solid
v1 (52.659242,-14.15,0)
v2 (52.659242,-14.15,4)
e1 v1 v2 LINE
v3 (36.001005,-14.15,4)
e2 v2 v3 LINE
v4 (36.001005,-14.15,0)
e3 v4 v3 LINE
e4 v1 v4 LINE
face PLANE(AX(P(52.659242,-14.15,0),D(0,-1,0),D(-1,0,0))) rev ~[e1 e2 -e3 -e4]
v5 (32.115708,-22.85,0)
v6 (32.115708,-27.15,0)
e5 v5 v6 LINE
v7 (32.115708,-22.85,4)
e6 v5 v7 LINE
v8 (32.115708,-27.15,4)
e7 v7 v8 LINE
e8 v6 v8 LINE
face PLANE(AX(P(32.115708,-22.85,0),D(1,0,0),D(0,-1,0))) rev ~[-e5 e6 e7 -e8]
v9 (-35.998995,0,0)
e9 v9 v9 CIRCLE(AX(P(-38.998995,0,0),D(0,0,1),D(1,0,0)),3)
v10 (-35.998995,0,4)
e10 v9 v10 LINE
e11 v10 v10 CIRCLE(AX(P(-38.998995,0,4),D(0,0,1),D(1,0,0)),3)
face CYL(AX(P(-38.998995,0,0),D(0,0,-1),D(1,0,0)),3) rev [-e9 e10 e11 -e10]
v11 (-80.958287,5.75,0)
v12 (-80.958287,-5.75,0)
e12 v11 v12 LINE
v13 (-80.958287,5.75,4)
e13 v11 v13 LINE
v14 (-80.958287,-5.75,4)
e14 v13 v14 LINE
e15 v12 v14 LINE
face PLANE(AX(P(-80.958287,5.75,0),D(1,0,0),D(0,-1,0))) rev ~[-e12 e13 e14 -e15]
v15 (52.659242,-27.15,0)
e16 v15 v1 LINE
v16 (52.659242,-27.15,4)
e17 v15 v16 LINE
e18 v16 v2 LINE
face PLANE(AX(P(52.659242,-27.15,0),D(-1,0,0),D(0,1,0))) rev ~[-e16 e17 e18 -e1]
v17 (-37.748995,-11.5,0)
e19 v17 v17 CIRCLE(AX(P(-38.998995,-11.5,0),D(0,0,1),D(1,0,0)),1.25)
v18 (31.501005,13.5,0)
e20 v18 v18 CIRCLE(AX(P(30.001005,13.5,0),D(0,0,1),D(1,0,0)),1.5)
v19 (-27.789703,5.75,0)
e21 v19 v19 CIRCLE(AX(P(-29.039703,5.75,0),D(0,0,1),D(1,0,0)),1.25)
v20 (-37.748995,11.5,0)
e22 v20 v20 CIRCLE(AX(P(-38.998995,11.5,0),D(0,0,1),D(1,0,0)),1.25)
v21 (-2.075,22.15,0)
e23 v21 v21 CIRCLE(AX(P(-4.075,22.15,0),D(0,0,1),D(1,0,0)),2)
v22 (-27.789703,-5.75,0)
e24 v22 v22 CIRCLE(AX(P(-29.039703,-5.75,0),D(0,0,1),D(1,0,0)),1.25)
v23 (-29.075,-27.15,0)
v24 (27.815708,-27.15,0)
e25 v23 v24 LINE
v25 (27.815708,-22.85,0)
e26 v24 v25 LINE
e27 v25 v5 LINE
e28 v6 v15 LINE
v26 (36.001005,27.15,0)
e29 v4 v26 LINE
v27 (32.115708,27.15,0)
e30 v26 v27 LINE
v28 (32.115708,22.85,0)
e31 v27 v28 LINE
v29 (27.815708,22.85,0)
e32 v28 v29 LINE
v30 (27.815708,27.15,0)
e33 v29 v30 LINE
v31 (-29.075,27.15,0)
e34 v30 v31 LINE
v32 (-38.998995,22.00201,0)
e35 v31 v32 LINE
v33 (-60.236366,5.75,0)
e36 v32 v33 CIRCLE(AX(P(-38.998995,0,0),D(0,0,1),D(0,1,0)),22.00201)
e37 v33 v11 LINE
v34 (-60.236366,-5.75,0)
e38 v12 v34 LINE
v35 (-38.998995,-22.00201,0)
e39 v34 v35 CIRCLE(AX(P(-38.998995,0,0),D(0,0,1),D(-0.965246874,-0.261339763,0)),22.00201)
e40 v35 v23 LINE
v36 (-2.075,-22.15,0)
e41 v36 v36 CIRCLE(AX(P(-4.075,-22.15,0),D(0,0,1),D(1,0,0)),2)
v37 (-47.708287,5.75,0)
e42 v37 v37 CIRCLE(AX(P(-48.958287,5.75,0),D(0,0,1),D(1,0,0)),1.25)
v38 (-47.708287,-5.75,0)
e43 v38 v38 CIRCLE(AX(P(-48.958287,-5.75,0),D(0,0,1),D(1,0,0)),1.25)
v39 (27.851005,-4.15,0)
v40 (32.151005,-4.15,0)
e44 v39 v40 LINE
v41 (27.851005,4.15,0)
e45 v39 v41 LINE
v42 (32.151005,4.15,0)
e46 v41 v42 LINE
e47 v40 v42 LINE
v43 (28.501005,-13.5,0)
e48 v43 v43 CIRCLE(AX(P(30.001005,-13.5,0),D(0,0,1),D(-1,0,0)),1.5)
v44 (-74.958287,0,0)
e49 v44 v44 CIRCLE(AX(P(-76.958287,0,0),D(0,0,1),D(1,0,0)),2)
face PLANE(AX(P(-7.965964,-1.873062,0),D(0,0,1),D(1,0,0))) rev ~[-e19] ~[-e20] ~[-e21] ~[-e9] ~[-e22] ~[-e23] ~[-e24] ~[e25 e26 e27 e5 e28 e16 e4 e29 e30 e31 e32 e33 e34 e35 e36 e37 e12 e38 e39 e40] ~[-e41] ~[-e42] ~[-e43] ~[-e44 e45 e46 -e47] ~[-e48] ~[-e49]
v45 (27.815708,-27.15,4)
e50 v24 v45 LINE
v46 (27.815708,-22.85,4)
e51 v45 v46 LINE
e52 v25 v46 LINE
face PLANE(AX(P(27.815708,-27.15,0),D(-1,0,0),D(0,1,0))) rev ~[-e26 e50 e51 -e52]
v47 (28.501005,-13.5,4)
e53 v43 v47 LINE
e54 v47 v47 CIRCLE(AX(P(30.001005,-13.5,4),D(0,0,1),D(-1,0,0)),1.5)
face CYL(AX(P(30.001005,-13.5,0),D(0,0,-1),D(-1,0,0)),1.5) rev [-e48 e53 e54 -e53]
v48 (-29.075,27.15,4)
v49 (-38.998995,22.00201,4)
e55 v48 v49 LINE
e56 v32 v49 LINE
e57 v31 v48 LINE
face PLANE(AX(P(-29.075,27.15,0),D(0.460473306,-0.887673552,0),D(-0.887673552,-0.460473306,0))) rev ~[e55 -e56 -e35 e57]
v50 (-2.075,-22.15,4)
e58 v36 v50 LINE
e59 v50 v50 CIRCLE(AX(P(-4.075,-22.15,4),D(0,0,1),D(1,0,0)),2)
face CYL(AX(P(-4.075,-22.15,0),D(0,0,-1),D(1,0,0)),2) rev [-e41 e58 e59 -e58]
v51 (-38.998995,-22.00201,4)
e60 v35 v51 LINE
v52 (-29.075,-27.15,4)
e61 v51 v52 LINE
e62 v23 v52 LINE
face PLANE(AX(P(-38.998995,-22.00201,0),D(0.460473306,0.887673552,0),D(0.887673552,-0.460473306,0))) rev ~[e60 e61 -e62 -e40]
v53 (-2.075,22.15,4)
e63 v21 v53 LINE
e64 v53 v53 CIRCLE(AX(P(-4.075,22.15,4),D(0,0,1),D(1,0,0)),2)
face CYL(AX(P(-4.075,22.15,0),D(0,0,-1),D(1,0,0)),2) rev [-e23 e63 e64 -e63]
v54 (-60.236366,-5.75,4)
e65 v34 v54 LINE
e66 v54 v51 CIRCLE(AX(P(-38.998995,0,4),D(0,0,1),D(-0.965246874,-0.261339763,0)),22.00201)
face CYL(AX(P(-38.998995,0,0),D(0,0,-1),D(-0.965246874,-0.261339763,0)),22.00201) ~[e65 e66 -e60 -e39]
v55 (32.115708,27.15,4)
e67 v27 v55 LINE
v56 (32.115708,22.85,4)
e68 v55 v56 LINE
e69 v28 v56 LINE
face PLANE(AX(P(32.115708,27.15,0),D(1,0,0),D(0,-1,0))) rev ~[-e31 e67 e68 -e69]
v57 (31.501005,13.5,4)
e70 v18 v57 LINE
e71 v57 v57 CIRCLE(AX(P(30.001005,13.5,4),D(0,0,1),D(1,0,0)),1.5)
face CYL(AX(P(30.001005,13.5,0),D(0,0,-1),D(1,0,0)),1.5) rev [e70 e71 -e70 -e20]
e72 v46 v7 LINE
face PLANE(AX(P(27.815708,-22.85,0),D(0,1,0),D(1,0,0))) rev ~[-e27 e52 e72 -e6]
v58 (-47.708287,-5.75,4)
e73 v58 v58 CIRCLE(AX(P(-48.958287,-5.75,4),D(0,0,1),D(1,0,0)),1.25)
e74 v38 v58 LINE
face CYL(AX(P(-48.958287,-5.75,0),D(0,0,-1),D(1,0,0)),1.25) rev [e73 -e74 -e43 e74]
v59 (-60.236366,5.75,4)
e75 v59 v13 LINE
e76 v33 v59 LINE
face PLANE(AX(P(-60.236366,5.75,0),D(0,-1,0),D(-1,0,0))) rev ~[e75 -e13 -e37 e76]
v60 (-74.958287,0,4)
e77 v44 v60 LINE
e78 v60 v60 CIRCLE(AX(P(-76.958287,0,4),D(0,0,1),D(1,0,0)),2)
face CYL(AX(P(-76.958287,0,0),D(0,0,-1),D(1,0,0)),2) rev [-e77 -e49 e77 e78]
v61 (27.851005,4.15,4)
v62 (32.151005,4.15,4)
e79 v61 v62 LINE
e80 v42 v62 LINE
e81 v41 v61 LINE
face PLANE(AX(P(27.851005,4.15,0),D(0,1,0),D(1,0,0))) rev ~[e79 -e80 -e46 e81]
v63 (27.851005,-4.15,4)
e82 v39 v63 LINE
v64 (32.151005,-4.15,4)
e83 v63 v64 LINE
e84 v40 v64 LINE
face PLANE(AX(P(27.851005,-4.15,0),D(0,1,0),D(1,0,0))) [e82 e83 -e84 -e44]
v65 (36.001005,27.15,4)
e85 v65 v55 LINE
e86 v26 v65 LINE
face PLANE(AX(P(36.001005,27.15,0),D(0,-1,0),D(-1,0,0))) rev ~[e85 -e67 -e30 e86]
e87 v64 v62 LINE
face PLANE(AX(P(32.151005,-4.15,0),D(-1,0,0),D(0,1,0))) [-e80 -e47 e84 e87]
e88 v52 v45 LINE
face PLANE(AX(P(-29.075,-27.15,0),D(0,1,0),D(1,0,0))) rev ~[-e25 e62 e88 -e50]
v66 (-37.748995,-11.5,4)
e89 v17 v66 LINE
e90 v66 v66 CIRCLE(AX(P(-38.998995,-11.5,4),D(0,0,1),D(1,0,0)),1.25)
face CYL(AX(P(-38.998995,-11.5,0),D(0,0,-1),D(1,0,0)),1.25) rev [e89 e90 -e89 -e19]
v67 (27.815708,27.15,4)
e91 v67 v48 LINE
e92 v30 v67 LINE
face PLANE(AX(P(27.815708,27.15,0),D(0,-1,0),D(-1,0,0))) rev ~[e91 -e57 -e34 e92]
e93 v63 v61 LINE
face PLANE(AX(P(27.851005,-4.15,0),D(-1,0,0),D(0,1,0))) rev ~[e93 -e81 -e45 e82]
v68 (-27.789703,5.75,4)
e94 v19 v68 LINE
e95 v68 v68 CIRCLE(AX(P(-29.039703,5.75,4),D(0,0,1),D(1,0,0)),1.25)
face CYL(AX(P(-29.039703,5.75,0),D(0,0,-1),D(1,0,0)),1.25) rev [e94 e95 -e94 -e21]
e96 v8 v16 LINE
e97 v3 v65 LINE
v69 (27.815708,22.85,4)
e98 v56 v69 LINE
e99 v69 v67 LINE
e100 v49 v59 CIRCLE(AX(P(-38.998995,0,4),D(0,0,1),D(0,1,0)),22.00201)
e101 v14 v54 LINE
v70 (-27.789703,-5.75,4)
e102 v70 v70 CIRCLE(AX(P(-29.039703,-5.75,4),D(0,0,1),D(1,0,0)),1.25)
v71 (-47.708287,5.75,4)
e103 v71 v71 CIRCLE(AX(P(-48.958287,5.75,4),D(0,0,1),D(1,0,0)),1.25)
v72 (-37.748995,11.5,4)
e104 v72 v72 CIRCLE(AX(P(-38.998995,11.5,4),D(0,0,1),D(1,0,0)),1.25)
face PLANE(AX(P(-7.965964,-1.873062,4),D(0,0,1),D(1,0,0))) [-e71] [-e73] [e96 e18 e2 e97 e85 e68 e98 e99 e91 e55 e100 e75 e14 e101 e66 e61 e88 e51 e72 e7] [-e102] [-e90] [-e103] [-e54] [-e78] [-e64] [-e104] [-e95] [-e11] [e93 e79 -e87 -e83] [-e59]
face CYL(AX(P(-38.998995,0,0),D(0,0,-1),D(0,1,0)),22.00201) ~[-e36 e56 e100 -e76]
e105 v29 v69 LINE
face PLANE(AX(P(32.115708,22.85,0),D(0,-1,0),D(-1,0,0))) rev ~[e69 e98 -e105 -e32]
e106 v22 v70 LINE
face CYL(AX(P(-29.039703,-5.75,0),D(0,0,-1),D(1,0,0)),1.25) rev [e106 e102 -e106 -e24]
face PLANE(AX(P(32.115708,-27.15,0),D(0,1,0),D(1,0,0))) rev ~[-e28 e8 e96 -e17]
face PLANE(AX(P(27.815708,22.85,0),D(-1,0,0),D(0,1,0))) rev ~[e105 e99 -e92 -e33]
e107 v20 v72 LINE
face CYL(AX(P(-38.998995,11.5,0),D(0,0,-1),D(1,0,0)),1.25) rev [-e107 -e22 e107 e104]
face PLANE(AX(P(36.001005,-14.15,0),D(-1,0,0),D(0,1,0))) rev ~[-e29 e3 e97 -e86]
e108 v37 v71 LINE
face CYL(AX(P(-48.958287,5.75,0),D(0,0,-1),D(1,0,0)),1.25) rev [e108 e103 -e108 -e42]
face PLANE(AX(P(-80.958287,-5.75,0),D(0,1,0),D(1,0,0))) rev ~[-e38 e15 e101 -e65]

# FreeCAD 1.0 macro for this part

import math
import FreeCAD as App
import Part
import Sketcher

V = App.Vector
Q = App.Units.Quantity

doc = App.newDocument("Part")
body = doc.addObject("PartDesign::Body", "Body")

# Sketch on XY plane
sketch1 = doc.addObject("Sketcher::SketchObject", "Sketch")
body.addObject(sketch1)
sketch1.AttachmentSupport = (doc.XY_Plane, [""])
sketch1.MapMode = "FlatFace"
sketch1.addGeometry(Part.LineSegment(V(32.115708, 27.15, 0), V(32.115708, 22.85, 0)), False)
sketch1.addGeometry(Part.LineSegment(V(32.115708, 22.85, 0), V(27.815708, 22.85, 0)), False)
sketch1.addGeometry(Part.LineSegment(V(27.815708, 22.85, 0), V(27.815708, 27.15, 0)), False)
sketch1.addGeometry(Part.LineSegment(V(27.815708, 27.15, 0), V(-29.075, 27.15, 0)), False)
sketch1.addGeometry(Part.LineSegment(V(-29.075, 27.15, 0), V(-38.998995, 22.00201, 0)), False)
sketch1.addGeometry(Part.ArcOfCircle(Part.Circle(V(-38.998995, 0, 0), V(0, 0, 1), 22.00201), math.radians(90), math.radians(164.850426)), False)
sketch1.addGeometry(Part.LineSegment(V(-60.236366, 5.75, 0), V(-80.958287, 5.75, 0)), False)
sketch1.addGeometry(Part.LineSegment(V(-80.958287, 5.75, 0), V(-80.958287, -5.75, 0)), False)
sketch1.addGeometry(Part.LineSegment(V(-80.958287, -5.75, 0), V(-60.236366, -5.75, 0)), False)
sketch1.addGeometry(Part.ArcOfCircle(Part.Circle(V(-38.998995, 0, 0), V(0, 0, 1), 22.00201), math.radians(-164.850426), math.radians(-90)), False)
sketch1.addGeometry(Part.LineSegment(V(-38.998995, -22.00201, 0), V(-29.075, -27.15, 0)), False)
sketch1.addGeometry(Part.LineSegment(V(-29.075, -27.15, 0), V(27.815708, -27.15, 0)), False)
sketch1.addGeometry(Part.LineSegment(V(27.815708, -27.15, 0), V(27.815708, -22.85, 0)), False)
sketch1.addGeometry(Part.LineSegment(V(27.815708, -22.85, 0), V(32.115708, -22.85, 0)), False)
sketch1.addGeometry(Part.LineSegment(V(32.115708, -22.85, 0), V(32.115708, -27.15, 0)), False)
sketch1.addGeometry(Part.LineSegment(V(32.115708, -27.15, 0), V(52.659242, -27.15, 0)), False)
sketch1.addGeometry(Part.LineSegment(V(52.659242, -27.15, 0), V(52.659242, -14.15, 0)), False)
sketch1.addGeometry(Part.LineSegment(V(52.659242, -14.15, 0), V(36.001005, -14.15, 0)), False)
sketch1.addGeometry(Part.LineSegment(V(36.001005, -14.15, 0), V(36.001005, 27.15, 0)), False)
sketch1.addGeometry(Part.LineSegment(V(36.001005, 27.15, 0), V(32.115708, 27.15, 0)), False)
sketch1.addGeometry(Part.Circle(V(-76.958287, 0, 0), V(0, 0, 1), 2), False)
sketch1.addGeometry(Part.Circle(V(-38.998995, -11.5, 0), V(0, 0, 1), 1.25), False)
sketch1.addGeometry(Part.Circle(V(-48.958287, -5.75, 0), V(0, 0, 1), 1.25), False)
sketch1.addGeometry(Part.Circle(V(-38.998995, 0, 0), V(0, 0, 1), 3), False)
sketch1.addGeometry(Part.Circle(V(-29.039703, -5.75, 0), V(0, 0, 1), 1.25), False)
sketch1.addGeometry(Part.Circle(V(-4.075, -22.15, 0), V(0, 0, 1), 2), False)
sketch1.addGeometry(Part.Circle(V(30.001005, -13.5, 0), V(0, 0, 1), 1.5), False)
sketch1.addGeometry(Part.LineSegment(V(32.151005, -4.15, 0), V(27.851005, -4.15, 0)), False)
sketch1.addGeometry(Part.LineSegment(V(27.851005, -4.15, 0), V(27.851005, 4.15, 0)), False)
sketch1.addGeometry(Part.LineSegment(V(27.851005, 4.15, 0), V(32.151005, 4.15, 0)), False)
sketch1.addGeometry(Part.LineSegment(V(32.151005, 4.15, 0), V(32.151005, -4.15, 0)), False)
sketch1.addGeometry(Part.Circle(V(-48.958287, 5.75, 0), V(0, 0, 1), 1.25), False)
sketch1.addGeometry(Part.Circle(V(-29.039703, 5.75, 0), V(0, 0, 1), 1.25), False)
sketch1.addGeometry(Part.Circle(V(-38.998995, 11.5, 0), V(0, 0, 1), 1.25), False)
sketch1.addGeometry(Part.Circle(V(-4.075, 22.15, 0), V(0, 0, 1), 2), False)
sketch1.addGeometry(Part.Circle(V(30.001005, 13.5, 0), V(0, 0, 1), 1.5), False)
sketch1.addConstraint(Sketcher.Constraint("Coincident", 0, 2, 1, 1))
sketch1.addConstraint(Sketcher.Constraint("Coincident", 1, 2, 2, 1))
sketch1.addConstraint(Sketcher.Constraint("Coincident", 2, 2, 3, 1))
sketch1.addConstraint(Sketcher.Constraint("Coincident", 3, 2, 4, 1))
sketch1.addConstraint(Sketcher.Constraint("Coincident", 4, 2, 5, 1))
sketch1.addConstraint(Sketcher.Constraint("Coincident", 5, 2, 6, 1))
sketch1.addConstraint(Sketcher.Constraint("Coincident", 6, 2, 7, 1))
sketch1.addConstraint(Sketcher.Constraint("Coincident", 7, 2, 8, 1))
sketch1.addConstraint(Sketcher.Constraint("Coincident", 8, 2, 9, 1))
sketch1.addConstraint(Sketcher.Constraint("Coincident", 9, 2, 10, 1))
sketch1.addConstraint(Sketcher.Constraint("Coincident", 10, 2, 11, 1))
sketch1.addConstraint(Sketcher.Constraint("Coincident", 11, 2, 12, 1))
sketch1.addConstraint(Sketcher.Constraint("Coincident", 12, 2, 13, 1))
sketch1.addConstraint(Sketcher.Constraint("Coincident", 13, 2, 14, 1))
sketch1.addConstraint(Sketcher.Constraint("Coincident", 14, 2, 15, 1))
sketch1.addConstraint(Sketcher.Constraint("Coincident", 15, 2, 16, 1))
sketch1.addConstraint(Sketcher.Constraint("Coincident", 16, 2, 17, 1))
sketch1.addConstraint(Sketcher.Constraint("Coincident", 17, 2, 18, 1))
sketch1.addConstraint(Sketcher.Constraint("Coincident", 18, 2, 19, 1))
sketch1.addConstraint(Sketcher.Constraint("Coincident", 19, 2, 0, 1))
sketch1.addConstraint(Sketcher.Constraint("Coincident", 27, 2, 28, 1))
sketch1.addConstraint(Sketcher.Constraint("Coincident", 28, 2, 29, 1))
sketch1.addConstraint(Sketcher.Constraint("Coincident", 29, 2, 30, 1))
sketch1.addConstraint(Sketcher.Constraint("Coincident", 30, 2, 27, 1))
sketch1.addConstraint(Sketcher.Constraint("Vertical", 0))
sketch1.addConstraint(Sketcher.Constraint("Horizontal", 1))
sketch1.addConstraint(Sketcher.Constraint("Vertical", 2))
sketch1.addConstraint(Sketcher.Constraint("Horizontal", 3))
sketch1.addConstraint(Sketcher.Constraint("Horizontal", 6))
sketch1.addConstraint(Sketcher.Constraint("Vertical", 7))
sketch1.addConstraint(Sketcher.Constraint("Horizontal", 8))
sketch1.addConstraint(Sketcher.Constraint("Horizontal", 11))
sketch1.addConstraint(Sketcher.Constraint("Vertical", 12))
sketch1.addConstraint(Sketcher.Constraint("Horizontal", 13))
sketch1.addConstraint(Sketcher.Constraint("Vertical", 14))
sketch1.addConstraint(Sketcher.Constraint("Horizontal", 15))
sketch1.addConstraint(Sketcher.Constraint("Vertical", 16))
sketch1.addConstraint(Sketcher.Constraint("Horizontal", 17))
sketch1.addConstraint(Sketcher.Constraint("Vertical", 18))
sketch1.addConstraint(Sketcher.Constraint("Horizontal", 19))
sketch1.addConstraint(Sketcher.Constraint("Horizontal", 27))
sketch1.addConstraint(Sketcher.Constraint("Vertical", 28))
sketch1.addConstraint(Sketcher.Constraint("Horizontal", 29))
sketch1.addConstraint(Sketcher.Constraint("Vertical", 30))
sketch1.addConstraint(Sketcher.Constraint("Coincident", 9, 3, 5, 3))
sketch1.addConstraint(Sketcher.Constraint("Coincident", 23, 3, 5, 3))
sketch1.addConstraint(Sketcher.Constraint("Equal", 5, 9))
sketch1.addConstraint(Sketcher.Constraint("Equal", 21, 22))
sketch1.addConstraint(Sketcher.Constraint("Equal", 22, 24))
sketch1.addConstraint(Sketcher.Constraint("Equal", 20, 25))
sketch1.addConstraint(Sketcher.Constraint("Equal", 24, 31))
sketch1.addConstraint(Sketcher.Constraint("Equal", 31, 32))
sketch1.addConstraint(Sketcher.Constraint("Equal", 32, 33))
sketch1.addConstraint(Sketcher.Constraint("Equal", 25, 34))
sketch1.addConstraint(Sketcher.Constraint("Equal", 26, 35))
sketch1.addConstraint(Sketcher.Constraint("Symmetric", 22, 3, 31, 3, -1))
sketch1.addConstraint(Sketcher.Constraint("Symmetric", 24, 3, 32, 3, -1))
sketch1.addConstraint(Sketcher.Constraint("Symmetric", 21, 3, 33, 3, -1))
sketch1.addConstraint(Sketcher.Constraint("Symmetric", 25, 3, 34, 3, -1))
sketch1.addConstraint(Sketcher.Constraint("Symmetric", 26, 3, 35, 3, -1))
sketch1.addConstraint(Sketcher.Constraint("Symmetric", 5, 2, 8, 2, -1))
sketch1.addConstraint(Sketcher.Constraint("Symmetric", 3, 2, 10, 2, -1))
sketch1.addConstraint(Sketcher.Constraint("Symmetric", 1, 2, 12, 2, -1))
sketch1.addConstraint(Sketcher.Constraint("Symmetric", 14, 2, 19, 2, -1))
sketch1.addConstraint(Sketcher.Constraint("PointOnObject", 20, 3, -1))
sketch1.addConstraint(Sketcher.Constraint("Horizontal", 22, 3, 24, 3))
sketch1.addConstraint(Sketcher.Constraint("Horizontal", 32, 3, 5, 2))
sketch1.addConstraint(Sketcher.Constraint("Horizontal", 11, 2, 14, 2))
sketch1.addConstraint(Sketcher.Constraint("Vertical", 9, 3, 21, 3))
sketch1.addConstraint(Sketcher.Constraint("Vertical", 33, 3, 4, 2))
sketch1.addConstraint(Sketcher.Constraint("Vertical", 4, 2, 9, 2))
sketch1.addConstraint(Sketcher.Constraint("Equal", 13, 27))
sketch1.addConstraint(Sketcher.Constraint("Equal", 29, 0))
sketch1.addConstraint(Sketcher.Constraint("Diameter", 20, Q("4 mm")))
sketch1.addConstraint(Sketcher.Constraint("Diameter", 23, Q("6 mm")))
sketch1.addConstraint(Sketcher.Constraint("Diameter", 26, Q("3 mm")))
sketch1.addConstraint(Sketcher.Constraint("Diameter", 21, Q("2.5 mm")))
sketch1.addConstraint(Sketcher.Constraint("DistanceY", 16, 1, 16, 2, Q("13 mm")))
sketch1.addConstraint(Sketcher.Constraint("DistanceX", 1, 2, 1, 1, Q("4.3 mm")))
sketch1.addConstraint(Sketcher.Constraint("DistanceY", 7, 2, 7, 1, Q("11.5 mm")))
sketch1.addConstraint(Sketcher.Constraint("DistanceY", 18, 1, 18, 2, Q("41.3 mm")))
sketch1.addConstraint(Sketcher.Constraint("DistanceY", 28, 1, 28, 2, Q("8.3 mm")))
sketch1.addConstraint(Sketcher.Constraint("DistanceX", 20, 3, 22, 3, Q("28 mm")))
sketch1.addConstraint(Sketcher.Constraint("DistanceX", 21, 3, 26, 3, Q("69 mm")))
sketch1.addConstraint(Sketcher.Constraint("DistanceY", 26, 3, 21, 3, Q("2 mm")))
sketch1.addConstraint(Sketcher.Constraint("DistanceY", 26, 3, 35, 3, Q("27 mm")))
sketch1.addConstraint(Sketcher.Constraint("DistanceY", 25, 3, 0, 2, Q("45 mm")))
sketch1.addConstraint(Sketcher.Constraint("DistanceX", 3, 2, 34, 3, Q("25 mm")))
sketch1.addConstraint(Sketcher.Constraint("DistanceX", 6, 2, 20, 3, Q("4 mm")))
sketch1.addConstraint(Sketcher.Constraint("DistanceX", 26, 3, 17, 2, Q("6 mm")))
sketch1.addConstraint(Sketcher.Constraint("DistanceY", 17, 2, 27, 2, Q("10 mm")))
sketch1.addConstraint(Sketcher.Constraint("Radius", 5, Q("22.00201 mm")))
sketch1.addConstraint(Sketcher.Constraint("DistanceX", 27, 2, 26, 3, Q("2.15 mm")))
sketch1.addConstraint(Sketcher.Constraint("DistanceX", 25, 3, -1, 1, Q("4.075 mm")))
sketch1.addConstraint(Sketcher.Constraint("DistanceX", 6, 2, 6, 1, Q("20.721921 mm")))
sketch1.addConstraint(Sketcher.Constraint("Distance", 4, Q("11.17978 mm")))
sketch1.addConstraint(Sketcher.Constraint("DistanceX", 3, 2, 3, 1, Q("56.890708 mm")))
sketch1.addConstraint(Sketcher.Constraint("DistanceX", 15, 1, 15, 2, Q("20.543534 mm")))
sketch1.addConstraint(Sketcher.Constraint("DistanceX", 32, 3, 0, 2, Q("61.155411 mm")))
pad1 = doc.addObject("PartDesign::Pad", "Pad")
body.addObject(pad1)
pad1.Profile = sketch1
pad1.Length = 4

doc.recompute()
